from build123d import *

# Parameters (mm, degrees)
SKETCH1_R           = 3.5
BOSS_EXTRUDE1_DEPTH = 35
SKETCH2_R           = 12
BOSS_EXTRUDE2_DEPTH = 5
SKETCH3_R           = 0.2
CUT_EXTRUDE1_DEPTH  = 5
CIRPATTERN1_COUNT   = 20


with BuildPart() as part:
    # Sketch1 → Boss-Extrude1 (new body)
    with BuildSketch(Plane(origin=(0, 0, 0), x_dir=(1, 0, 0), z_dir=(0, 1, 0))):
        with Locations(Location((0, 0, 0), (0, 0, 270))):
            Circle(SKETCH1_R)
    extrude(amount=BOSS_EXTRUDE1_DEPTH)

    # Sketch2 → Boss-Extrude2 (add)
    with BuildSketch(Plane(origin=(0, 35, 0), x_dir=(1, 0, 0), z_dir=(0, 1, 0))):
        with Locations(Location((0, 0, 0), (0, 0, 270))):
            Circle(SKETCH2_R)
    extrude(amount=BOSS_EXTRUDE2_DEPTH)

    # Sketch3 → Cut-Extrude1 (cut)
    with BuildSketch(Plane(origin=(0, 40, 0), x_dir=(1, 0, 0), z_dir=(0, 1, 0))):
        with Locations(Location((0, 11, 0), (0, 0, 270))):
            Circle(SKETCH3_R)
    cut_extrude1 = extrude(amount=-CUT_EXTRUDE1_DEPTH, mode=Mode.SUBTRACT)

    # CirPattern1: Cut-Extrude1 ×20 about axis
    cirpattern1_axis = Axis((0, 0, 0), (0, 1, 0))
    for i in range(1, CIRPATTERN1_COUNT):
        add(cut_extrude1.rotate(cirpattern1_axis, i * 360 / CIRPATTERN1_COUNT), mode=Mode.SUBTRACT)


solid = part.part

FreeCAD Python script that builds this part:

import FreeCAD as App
import Part
import Sketcher
Q = App.Units.Quantity

doc = App.newDocument("Part")
body = doc.addObject("PartDesign::Body", "Body")

# Sketch on XZ plane
sketch1 = body.newObject("Sketcher::SketchObject", "Sketch")
sketch1.AttachmentSupport = (doc.getObject("XZ_Plane"), [""])
sketch1.MapMode = "FlatFace"
sketch1.addGeometry(Part.Circle(App.Vector(0, 0, 0), App.Vector(0, 0, 1), 3.5), False)
sketch1.addConstraint(Sketcher.Constraint("Coincident", 0, 3, -1, 1))
sketch1.addConstraint(Sketcher.Constraint("Diameter", 0, Q("7 mm")))
pad1 = body.newObject("PartDesign::Pad", "Pad")
pad1.Profile = sketch1
pad1.Length = 35
pad1.Reversed = True

# Sketch on XZ plane
sketch2 = body.newObject("Sketcher::SketchObject", "Sketch001")
sketch2.AttachmentSupport = (doc.getObject("XZ_Plane"), [""])
sketch2.MapMode = "FlatFace"
sketch2.AttachmentOffset = App.Placement(App.Vector(0, 0, -35), App.Rotation())
sketch2.addGeometry(Part.Circle(App.Vector(0, 0, 0), App.Vector(0, 0, 1), 12), False)
sketch2.addConstraint(Sketcher.Constraint("Coincident", 0, 3, -1, 1))
sketch2.addConstraint(Sketcher.Constraint("Diameter", 0, Q("24 mm")))
pad2 = body.newObject("PartDesign::Pad", "Pad001")
pad2.Profile = sketch2
pad2.Length = 5
pad2.Reversed = True

# Sketch on XZ plane
sketch3 = body.newObject("Sketcher::SketchObject", "Sketch002")
sketch3.AttachmentSupport = (doc.getObject("XZ_Plane"), [""])
sketch3.MapMode = "FlatFace"
sketch3.AttachmentOffset = App.Placement(App.Vector(0, 0, -40), App.Rotation())
sketch3.addGeometry(Part.Circle(App.Vector(0, -11, 0), App.Vector(0, 0, 1), 0.2), False)
sketch3.addConstraint(Sketcher.Constraint("PointOnObject", 0, 3, -2))
sketch3.addConstraint(Sketcher.Constraint("Diameter", 0, Q("0.4 mm")))
sketch3.addConstraint(Sketcher.Constraint("DistanceY", 0, 3, -1, 1, Q("11 mm")))
pocket1 = body.newObject("PartDesign::Pocket", "Pocket")
pocket1.Profile = sketch3
pocket1.Length = 5
pocket1.Reversed = True
doc.recompute()

polarpattern = body.newObject("PartDesign::PolarPattern", "PolarPattern")
polarpattern.Originals = [pocket1]
polarpattern.Axis = (doc.getObject("Y_Axis"), [""])
polarpattern.Angle = 360
polarpattern.Occurrences = 20
body.Tip = polarpattern

doc.recompute()
